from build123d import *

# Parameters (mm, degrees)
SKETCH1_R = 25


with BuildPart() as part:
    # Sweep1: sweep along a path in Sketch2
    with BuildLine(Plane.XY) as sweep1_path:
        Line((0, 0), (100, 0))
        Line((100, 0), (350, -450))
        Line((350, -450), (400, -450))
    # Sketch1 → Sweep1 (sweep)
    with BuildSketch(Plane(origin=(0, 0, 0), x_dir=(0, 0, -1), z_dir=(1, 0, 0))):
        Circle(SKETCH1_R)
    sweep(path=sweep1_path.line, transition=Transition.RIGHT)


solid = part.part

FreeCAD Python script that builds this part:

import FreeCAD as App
import Part
import Sketcher

V = App.Vector

doc = App.newDocument("Part")
body = doc.addObject("PartDesign::Body", "Body")

# Sketch on YZ plane
sketch1 = body.newObject("Sketcher::SketchObject", "Sketch")
sketch1.AttachmentSupport = (doc.getObject("YZ_Plane"), [""])
sketch1.MapMode = "FlatFace"
sketch1.addGeometry(Part.Circle(V(0, 0, 0), V(0, 0, 1), 25), False)
sketch1.addConstraint(Sketcher.Constraint("Coincident", 0, 3, -1, 1))
sketch1.addConstraint(Sketcher.Constraint("Diameter", 0, 50.0))

# Sketch on XY plane
sketch2 = body.newObject("Sketcher::SketchObject", "Sketch001")
sketch2.AttachmentSupport = (doc.getObject("XY_Plane"), [""])
sketch2.MapMode = "FlatFace"
sketch2.addGeometry(Part.LineSegment(V(0, 0, 0), V(100, 0, 0)), False)
sketch2.addGeometry(Part.LineSegment(V(100, 0, 0), V(350, -450, 0)), False)
sketch2.addGeometry(Part.LineSegment(V(350, -450, 0), V(400, -450, 0)), False)
sketch2.addConstraint(Sketcher.Constraint("Coincident", 0, 2, 1, 1))
sketch2.addConstraint(Sketcher.Constraint("Coincident", 1, 2, 2, 1))
sketch2.addConstraint(Sketcher.Constraint("Horizontal", 0))
sketch2.addConstraint(Sketcher.Constraint("Horizontal", 2))
sketch2.addConstraint(Sketcher.Constraint("Coincident", 0, 1, -1, 1))
sketch2.addConstraint(Sketcher.Constraint("DistanceX", 0, 1, 0, 2, 100.0))
sketch2.addConstraint(Sketcher.Constraint("DistanceX", 2, 1, 2, 2, 50.0))
sketch2.addConstraint(Sketcher.Constraint("DistanceX", -1, 1, 1, 2, 350.0))
sketch2.addConstraint(Sketcher.Constraint("DistanceY", 1, 2, -1, 1, 450.0))
doc.recompute()

additivepipe = body.newObject("PartDesign::AdditivePipe", "AdditivePipe")
additivepipe.Profile = sketch1
additivepipe.Spine = (sketch2, ["Edge1", "Edge2", "Edge3"])
additivepipe.Transition = "Right corner"

doc.recompute()
